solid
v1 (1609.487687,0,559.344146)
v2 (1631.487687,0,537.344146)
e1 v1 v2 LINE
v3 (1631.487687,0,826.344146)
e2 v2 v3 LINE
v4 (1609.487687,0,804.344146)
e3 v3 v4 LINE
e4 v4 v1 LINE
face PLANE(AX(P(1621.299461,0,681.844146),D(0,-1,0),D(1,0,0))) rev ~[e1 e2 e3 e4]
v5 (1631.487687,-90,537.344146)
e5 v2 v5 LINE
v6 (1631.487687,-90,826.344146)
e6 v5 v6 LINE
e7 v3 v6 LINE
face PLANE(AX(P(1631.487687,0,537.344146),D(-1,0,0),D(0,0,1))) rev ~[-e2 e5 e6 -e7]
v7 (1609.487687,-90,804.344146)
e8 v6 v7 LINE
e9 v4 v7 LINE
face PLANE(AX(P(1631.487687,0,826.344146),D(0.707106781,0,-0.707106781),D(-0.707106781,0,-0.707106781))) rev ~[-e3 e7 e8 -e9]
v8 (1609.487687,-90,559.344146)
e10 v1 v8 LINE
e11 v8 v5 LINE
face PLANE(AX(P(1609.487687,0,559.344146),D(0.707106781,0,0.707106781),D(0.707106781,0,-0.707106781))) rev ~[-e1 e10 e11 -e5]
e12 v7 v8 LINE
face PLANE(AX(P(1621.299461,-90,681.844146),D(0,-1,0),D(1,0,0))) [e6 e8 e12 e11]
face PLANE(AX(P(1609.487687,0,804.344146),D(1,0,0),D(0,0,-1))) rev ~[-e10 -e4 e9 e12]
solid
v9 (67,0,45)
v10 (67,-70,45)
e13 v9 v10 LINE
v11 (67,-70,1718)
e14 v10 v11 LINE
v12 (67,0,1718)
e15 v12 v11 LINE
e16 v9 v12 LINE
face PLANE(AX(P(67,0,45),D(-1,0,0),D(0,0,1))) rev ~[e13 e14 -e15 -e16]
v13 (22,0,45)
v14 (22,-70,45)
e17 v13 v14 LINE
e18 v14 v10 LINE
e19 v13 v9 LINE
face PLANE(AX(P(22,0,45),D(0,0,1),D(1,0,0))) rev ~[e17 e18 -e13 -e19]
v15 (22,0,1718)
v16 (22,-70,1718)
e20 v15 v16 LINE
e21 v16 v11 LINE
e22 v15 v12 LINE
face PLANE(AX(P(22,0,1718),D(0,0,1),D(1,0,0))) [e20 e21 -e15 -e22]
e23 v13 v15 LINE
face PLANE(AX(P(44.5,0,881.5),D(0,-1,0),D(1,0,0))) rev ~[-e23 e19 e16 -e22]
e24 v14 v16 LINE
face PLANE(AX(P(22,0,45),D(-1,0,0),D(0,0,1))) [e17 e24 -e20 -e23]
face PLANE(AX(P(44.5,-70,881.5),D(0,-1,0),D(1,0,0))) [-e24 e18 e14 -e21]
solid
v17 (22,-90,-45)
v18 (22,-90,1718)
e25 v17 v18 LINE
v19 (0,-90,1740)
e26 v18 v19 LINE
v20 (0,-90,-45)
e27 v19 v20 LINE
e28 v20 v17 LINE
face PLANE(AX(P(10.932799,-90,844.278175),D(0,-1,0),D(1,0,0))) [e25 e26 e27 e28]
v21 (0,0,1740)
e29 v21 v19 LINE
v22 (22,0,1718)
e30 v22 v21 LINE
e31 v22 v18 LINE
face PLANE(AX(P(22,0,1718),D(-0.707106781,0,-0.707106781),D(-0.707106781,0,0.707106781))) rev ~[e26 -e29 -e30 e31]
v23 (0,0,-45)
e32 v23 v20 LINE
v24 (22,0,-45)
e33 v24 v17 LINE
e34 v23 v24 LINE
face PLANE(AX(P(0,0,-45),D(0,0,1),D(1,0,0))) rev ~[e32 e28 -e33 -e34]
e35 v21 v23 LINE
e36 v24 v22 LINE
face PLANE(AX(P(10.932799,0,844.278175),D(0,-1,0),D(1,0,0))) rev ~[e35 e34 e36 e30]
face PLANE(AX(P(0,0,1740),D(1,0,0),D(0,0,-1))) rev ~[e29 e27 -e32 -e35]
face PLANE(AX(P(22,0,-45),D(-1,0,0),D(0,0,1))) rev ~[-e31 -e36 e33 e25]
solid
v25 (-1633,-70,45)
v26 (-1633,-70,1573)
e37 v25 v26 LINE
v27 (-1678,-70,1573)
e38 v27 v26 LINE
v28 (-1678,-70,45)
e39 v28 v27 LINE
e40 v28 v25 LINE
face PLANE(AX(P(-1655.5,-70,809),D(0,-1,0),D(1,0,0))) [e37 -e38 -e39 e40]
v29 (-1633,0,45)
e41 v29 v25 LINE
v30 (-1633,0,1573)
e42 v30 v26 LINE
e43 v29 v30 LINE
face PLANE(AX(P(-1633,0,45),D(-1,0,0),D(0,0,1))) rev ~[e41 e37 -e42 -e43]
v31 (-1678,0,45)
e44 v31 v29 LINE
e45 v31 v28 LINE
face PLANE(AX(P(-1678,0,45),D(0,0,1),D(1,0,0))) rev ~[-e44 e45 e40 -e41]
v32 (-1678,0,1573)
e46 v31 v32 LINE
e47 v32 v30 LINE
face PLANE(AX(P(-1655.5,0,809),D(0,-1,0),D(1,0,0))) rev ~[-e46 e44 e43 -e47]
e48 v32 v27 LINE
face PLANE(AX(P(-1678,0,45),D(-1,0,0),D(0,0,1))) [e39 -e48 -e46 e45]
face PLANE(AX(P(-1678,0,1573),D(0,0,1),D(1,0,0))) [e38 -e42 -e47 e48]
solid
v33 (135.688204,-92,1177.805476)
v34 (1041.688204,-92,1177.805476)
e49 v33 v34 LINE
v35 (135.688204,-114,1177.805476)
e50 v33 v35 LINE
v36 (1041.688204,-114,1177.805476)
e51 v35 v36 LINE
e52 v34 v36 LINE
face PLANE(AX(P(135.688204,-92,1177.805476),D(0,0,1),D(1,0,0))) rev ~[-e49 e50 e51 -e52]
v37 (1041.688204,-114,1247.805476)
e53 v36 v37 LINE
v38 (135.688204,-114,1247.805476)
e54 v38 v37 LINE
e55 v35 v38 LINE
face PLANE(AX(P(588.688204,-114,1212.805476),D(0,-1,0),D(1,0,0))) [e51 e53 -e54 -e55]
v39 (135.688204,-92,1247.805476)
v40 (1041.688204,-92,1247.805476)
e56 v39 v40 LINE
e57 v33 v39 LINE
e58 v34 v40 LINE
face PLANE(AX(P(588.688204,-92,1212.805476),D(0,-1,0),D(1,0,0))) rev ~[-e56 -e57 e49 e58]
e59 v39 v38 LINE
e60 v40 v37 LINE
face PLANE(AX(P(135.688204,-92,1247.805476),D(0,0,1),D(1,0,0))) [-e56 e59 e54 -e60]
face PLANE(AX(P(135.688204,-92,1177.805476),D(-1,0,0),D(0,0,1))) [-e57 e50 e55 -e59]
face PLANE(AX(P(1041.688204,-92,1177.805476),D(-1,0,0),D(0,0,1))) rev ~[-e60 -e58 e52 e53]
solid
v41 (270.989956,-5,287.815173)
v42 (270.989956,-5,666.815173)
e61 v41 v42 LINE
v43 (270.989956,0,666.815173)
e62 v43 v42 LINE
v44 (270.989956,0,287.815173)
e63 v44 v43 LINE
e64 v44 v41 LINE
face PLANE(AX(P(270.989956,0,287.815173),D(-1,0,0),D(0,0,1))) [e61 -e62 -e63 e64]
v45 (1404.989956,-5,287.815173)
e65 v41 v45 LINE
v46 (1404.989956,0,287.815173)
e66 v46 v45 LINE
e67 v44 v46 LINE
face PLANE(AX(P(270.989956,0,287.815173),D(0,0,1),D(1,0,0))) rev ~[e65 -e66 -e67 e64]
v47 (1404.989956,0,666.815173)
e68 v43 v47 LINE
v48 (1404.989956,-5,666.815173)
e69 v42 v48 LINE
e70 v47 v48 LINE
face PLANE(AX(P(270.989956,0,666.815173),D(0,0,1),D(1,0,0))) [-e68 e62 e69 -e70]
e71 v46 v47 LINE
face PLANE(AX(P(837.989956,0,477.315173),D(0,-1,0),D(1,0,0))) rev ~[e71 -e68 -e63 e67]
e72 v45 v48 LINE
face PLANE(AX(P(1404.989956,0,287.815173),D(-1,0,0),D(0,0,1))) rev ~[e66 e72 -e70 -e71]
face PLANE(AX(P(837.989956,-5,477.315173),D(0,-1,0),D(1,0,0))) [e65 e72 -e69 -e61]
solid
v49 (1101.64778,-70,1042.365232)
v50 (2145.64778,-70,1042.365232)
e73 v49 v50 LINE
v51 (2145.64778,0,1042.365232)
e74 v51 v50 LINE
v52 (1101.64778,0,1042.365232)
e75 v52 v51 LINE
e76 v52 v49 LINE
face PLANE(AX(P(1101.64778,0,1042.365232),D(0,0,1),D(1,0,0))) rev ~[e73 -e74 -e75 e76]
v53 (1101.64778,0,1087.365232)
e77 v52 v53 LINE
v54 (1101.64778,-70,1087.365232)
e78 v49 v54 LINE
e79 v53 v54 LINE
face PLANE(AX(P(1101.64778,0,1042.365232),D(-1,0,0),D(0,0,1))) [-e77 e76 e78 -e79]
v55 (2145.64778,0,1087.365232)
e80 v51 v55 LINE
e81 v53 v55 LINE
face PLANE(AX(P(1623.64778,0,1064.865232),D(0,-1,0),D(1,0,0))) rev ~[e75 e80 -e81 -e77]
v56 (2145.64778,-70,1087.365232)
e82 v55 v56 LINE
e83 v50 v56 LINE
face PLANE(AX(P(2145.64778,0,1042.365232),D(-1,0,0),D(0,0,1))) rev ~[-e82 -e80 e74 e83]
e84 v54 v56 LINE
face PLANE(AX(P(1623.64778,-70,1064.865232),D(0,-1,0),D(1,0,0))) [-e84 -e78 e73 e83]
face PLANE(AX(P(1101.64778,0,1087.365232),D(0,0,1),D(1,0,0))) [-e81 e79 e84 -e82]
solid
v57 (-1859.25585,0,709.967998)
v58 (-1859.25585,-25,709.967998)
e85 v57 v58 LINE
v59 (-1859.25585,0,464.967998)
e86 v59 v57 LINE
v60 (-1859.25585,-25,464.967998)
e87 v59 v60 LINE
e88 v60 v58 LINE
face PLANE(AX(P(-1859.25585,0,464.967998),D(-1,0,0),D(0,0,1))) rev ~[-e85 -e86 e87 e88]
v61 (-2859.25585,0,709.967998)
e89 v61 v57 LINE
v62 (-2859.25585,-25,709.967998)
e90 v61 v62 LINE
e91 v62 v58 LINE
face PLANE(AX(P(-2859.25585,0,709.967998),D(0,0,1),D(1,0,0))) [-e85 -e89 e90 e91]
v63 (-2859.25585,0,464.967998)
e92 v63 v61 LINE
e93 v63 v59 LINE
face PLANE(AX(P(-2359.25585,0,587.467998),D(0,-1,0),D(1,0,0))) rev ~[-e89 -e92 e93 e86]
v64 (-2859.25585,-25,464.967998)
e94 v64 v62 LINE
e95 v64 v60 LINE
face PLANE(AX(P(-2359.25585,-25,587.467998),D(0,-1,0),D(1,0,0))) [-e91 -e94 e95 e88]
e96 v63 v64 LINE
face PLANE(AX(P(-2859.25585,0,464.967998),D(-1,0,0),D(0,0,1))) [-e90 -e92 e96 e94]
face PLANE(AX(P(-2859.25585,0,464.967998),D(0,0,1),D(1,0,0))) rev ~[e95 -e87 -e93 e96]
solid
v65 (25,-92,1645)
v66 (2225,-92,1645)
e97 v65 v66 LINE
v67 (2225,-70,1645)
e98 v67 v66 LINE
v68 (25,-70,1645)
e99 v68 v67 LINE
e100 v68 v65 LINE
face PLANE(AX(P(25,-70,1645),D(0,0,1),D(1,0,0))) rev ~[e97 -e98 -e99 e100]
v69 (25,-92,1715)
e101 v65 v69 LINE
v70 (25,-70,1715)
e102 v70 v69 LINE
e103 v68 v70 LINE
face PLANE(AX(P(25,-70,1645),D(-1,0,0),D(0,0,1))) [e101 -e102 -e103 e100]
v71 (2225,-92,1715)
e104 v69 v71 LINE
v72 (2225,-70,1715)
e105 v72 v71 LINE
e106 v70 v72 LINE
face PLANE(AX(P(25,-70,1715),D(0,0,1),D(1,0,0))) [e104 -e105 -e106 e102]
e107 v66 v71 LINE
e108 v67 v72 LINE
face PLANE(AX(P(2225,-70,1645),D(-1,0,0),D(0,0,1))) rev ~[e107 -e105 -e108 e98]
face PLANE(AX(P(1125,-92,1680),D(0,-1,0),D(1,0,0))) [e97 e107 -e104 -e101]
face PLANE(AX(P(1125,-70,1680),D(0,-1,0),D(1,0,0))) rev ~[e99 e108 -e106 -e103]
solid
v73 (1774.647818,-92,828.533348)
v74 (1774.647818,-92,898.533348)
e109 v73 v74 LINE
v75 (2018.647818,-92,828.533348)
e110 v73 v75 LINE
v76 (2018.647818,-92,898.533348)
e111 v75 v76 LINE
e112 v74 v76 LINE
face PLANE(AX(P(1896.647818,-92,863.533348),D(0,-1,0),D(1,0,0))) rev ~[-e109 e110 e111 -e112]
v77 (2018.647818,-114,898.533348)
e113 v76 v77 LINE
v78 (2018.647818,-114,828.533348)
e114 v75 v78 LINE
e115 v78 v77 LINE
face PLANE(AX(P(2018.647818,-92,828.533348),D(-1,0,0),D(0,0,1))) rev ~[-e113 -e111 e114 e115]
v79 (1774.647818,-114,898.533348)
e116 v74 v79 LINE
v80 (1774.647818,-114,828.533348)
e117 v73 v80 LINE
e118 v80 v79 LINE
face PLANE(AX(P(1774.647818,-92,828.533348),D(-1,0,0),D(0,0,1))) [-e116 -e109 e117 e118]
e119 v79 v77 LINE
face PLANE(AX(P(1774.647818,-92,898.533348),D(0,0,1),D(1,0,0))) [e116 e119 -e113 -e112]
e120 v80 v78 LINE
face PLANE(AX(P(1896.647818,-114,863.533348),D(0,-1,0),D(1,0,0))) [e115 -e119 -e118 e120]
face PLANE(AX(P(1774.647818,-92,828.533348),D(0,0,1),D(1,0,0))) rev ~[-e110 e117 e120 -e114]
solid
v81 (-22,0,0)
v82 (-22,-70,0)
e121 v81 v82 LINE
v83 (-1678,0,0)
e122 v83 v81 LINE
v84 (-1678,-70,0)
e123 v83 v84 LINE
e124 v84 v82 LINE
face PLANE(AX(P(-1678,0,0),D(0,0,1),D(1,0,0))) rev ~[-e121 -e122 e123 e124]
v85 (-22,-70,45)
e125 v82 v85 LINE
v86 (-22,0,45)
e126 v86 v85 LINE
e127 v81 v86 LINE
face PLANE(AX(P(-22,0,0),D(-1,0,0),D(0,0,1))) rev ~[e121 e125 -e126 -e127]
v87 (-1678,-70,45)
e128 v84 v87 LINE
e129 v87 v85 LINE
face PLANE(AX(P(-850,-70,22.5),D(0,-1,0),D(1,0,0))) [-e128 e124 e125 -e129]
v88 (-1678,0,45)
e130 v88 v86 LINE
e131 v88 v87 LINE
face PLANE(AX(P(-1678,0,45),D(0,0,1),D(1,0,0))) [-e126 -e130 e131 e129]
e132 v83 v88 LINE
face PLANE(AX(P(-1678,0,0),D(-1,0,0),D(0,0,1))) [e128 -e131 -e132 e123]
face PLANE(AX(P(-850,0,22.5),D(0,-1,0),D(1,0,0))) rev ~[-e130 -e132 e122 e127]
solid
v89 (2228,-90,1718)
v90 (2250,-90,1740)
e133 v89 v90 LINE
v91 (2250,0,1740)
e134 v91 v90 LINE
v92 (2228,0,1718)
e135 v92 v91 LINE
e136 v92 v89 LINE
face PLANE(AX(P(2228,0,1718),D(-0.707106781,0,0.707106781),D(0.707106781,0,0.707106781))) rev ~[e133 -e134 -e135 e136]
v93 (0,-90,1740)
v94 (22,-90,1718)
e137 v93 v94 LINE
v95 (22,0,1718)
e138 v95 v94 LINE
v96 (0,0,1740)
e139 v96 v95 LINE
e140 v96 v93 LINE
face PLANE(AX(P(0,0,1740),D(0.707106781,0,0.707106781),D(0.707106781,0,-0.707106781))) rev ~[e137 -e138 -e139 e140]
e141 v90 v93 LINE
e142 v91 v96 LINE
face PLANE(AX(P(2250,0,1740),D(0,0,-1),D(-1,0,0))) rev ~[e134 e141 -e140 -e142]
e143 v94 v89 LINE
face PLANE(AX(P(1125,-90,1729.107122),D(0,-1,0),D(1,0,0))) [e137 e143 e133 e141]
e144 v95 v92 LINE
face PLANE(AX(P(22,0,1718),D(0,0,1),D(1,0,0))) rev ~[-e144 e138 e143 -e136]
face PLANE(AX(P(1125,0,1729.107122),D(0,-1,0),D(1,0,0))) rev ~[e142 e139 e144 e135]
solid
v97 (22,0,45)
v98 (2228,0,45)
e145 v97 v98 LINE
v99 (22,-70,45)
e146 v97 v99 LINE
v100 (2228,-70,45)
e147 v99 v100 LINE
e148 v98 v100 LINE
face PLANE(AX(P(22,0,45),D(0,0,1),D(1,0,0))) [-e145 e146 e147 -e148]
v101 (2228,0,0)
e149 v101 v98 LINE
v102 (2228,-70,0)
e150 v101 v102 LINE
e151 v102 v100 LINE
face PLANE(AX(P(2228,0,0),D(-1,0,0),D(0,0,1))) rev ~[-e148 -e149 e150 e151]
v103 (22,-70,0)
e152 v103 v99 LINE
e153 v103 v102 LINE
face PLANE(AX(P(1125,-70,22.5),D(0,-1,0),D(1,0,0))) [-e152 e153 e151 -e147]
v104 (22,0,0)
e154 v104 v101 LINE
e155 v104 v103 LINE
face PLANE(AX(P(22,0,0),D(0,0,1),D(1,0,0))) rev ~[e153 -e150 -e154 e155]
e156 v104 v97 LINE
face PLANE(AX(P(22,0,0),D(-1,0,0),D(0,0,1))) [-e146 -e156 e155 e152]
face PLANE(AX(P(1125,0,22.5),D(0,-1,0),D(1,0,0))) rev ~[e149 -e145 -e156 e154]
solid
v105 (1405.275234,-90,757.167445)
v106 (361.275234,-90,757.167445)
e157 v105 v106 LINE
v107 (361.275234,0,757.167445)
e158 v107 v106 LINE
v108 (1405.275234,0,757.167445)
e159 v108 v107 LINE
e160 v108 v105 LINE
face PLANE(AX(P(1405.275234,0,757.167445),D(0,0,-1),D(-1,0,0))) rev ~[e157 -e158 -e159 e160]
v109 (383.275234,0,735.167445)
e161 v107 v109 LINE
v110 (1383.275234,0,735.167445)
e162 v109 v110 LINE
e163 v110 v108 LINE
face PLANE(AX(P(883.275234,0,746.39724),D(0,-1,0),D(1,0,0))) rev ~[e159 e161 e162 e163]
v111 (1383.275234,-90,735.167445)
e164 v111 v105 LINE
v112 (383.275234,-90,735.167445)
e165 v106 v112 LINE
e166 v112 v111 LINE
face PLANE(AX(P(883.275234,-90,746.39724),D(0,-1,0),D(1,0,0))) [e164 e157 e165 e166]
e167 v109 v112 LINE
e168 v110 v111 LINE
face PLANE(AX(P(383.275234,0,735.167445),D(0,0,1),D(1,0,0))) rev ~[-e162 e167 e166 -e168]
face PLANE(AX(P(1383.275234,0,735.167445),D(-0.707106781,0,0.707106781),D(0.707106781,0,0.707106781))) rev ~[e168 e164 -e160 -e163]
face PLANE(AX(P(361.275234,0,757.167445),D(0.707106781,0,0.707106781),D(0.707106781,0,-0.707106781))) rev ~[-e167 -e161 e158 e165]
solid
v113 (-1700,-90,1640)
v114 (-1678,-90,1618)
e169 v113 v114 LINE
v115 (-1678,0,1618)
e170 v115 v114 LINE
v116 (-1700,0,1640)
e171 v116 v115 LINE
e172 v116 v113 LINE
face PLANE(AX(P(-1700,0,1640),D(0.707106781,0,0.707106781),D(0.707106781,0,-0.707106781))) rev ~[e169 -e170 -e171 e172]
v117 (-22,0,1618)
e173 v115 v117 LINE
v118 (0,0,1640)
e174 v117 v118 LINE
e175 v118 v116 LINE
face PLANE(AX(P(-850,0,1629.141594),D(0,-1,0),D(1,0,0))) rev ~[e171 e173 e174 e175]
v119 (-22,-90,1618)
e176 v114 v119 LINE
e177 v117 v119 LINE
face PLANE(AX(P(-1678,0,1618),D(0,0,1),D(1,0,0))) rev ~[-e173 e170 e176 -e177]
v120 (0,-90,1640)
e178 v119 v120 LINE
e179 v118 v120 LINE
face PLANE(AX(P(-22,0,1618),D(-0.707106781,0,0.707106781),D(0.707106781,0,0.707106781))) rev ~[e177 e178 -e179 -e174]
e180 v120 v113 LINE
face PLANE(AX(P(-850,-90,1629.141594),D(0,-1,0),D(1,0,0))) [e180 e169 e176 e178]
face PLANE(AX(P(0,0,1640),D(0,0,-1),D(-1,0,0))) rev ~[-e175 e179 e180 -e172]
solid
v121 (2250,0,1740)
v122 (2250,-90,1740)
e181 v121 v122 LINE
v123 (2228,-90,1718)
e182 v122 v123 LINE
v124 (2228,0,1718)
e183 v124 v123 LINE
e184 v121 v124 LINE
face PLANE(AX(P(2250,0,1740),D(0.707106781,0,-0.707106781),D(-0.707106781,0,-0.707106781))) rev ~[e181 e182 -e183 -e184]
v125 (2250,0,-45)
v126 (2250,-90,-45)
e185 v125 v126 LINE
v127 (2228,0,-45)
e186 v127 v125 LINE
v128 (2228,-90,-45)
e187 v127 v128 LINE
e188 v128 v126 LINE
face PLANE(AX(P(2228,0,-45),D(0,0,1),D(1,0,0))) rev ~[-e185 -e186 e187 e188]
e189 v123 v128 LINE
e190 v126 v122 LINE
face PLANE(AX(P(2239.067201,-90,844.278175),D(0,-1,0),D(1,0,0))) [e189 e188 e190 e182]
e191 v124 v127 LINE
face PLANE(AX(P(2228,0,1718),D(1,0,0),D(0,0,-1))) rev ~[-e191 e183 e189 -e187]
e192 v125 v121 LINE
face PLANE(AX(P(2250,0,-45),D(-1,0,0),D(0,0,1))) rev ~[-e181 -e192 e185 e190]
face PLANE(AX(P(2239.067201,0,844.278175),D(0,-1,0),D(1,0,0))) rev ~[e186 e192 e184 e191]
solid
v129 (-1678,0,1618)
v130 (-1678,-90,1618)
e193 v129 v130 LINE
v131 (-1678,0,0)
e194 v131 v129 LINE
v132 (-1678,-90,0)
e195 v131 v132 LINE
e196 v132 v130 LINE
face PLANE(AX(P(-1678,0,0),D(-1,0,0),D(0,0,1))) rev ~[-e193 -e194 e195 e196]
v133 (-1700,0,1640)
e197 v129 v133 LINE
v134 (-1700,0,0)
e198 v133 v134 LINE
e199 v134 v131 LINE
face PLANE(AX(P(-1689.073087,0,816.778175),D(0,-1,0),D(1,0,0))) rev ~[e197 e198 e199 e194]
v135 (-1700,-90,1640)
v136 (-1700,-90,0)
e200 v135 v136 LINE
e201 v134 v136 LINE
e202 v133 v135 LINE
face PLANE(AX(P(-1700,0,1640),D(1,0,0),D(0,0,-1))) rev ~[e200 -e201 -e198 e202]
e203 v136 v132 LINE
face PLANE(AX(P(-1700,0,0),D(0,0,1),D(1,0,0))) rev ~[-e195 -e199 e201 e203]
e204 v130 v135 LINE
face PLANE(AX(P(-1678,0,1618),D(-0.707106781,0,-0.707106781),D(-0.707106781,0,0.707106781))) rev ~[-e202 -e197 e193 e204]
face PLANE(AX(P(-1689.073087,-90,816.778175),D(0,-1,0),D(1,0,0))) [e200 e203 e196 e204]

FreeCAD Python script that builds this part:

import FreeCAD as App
import Part
import Sketcher

V = App.Vector

doc = App.newDocument("Part")
params = doc.addObject("Spreadsheet::Sheet", "Params")
for row, (alias, value) in enumerate([
    ("sketch1_width", "2206 mm"),
    ("sketch1_height", "45 mm"),
    ("pad1_length", "70 mm"),
    ("sketch2_width", "45 mm"),
    ("sketch2_height", "1673 mm"),
    ("pad2_length", "70 mm"),
    ("sketch3_width", "2250 mm"),
    ("sketch3_width2", "2206 mm"),
    ("pad3_length", "90 mm"),
    ("sketch4_width", "22 mm"),
    ("sketch4_height", "1785 mm"),
    ("sketch4_height2", "1763 mm"),
    ("pad4_length", "90 mm"),
    ("sketch5_width", "22 mm"),
    ("sketch5_height", "1785 mm"),
    ("sketch5_height2", "1763 mm"),
    ("pad5_length", "90 mm"),
    ("sketch6_width", "2200 mm"),
    ("sketch6_height", "70 mm"),
    ("pad6_length", "22 mm"),
    ("sketch7_width", "1044 mm"),
    ("sketch7_height", "45 mm"),
    ("pad7_length", "70 mm"),
    ("sketch8_width", "906 mm"),
    ("sketch8_height", "70 mm"),
    ("pad8_length", "22 mm"),
    ("sketch9_width", "244 mm"),
    ("sketch9_height", "70 mm"),
    ("pad9_length", "22 mm"),
    ("sketch10_height", "289 mm"),
    ("sketch10_height2", "245 mm"),
    ("pad10_length", "90 mm"),
    ("sketch11_width", "1044 mm"),
    ("sketch11_width2", "1000 mm"),
    ("pad11_length", "90 mm"),
    ("sketch12_width", "1134 mm"),
    ("sketch12_height", "379 mm"),
    ("pad12_length", "5 mm"),
    ("sketch13_width", "1000 mm"),
    ("sketch13_height", "245 mm"),
    ("pad13_length", "25 mm"),
    ("sketch14_width", "1656 mm"),
    ("sketch14_height", "45 mm"),
    ("pad14_length", "70 mm"),
    ("sketch15_width", "45 mm"),
    ("sketch15_height", "1528 mm"),
    ("pad15_length", "70 mm"),
    ("sketch16_width", "22 mm"),
    ("sketch16_height", "1640 mm"),
    ("sketch16_height2", "1618 mm"),
    ("pad16_length", "90 mm"),
    ("sketch17_width", "1700 mm"),
    ("sketch17_width2", "1656 mm"),
    ("pad17_length", "90 mm"),
], start=1):
    params.set(f"A{row}", alias)
    params.set(f"B{row}", "=" + value)
    params.setAlias(f"B{row}", alias)

body = doc.addObject("PartDesign::Body", "Body")

# Sketch on XZ plane
sketch1 = doc.addObject("Sketcher::SketchObject", "Sketch")
body.addObject(sketch1)
sketch1.AttachmentSupport = (doc.XZ_Plane, [""])
sketch1.MapMode = "FlatFace"
sketch1.addGeometry([
    Part.LineSegment(V(22, 45, 0), V(22, 0, 0)),
    Part.LineSegment(V(22, 0, 0), V(2228, 0, 0)),
    Part.LineSegment(V(2228, 0, 0), V(2228, 45, 0)),
    Part.LineSegment(V(2228, 45, 0), V(22, 45, 0)),
], False)
sketch1.addConstraint([
    Sketcher.Constraint("Coincident", 0, 2, 1, 1),
    Sketcher.Constraint("Coincident", 1, 2, 2, 1),
    Sketcher.Constraint("Coincident", 2, 2, 3, 1),
    Sketcher.Constraint("Coincident", 3, 2, 0, 1),
    Sketcher.Constraint("Vertical", 0),
    Sketcher.Constraint("Horizontal", 1),
    Sketcher.Constraint("Vertical", 2),
    Sketcher.Constraint("Horizontal", 3),
    Sketcher.Constraint("PointOnObject", 0, 2, -1),
    Sketcher.Constraint("DistanceX", 1, 1, 1, 2, 2206.0),
    Sketcher.Constraint("DistanceY", 0, 2, 0, 1, 45.0),
    Sketcher.Constraint("DistanceX", -1, 1, 0, 2, 22.0),
])
sketch1.setExpression("Constraints[9]", "Params.sketch1_width")
sketch1.setExpression("Constraints[10]", "Params.sketch1_height")
pad1 = doc.addObject("PartDesign::Pad", "Pad")
body.addObject(pad1)
pad1.Profile = sketch1
pad1.setExpression("Length", "Params.pad1_length")
body2 = doc.addObject("PartDesign::Body", "Body001")

# Sketch on XZ plane
sketch2 = doc.addObject("Sketcher::SketchObject", "Sketch001")
body2.addObject(sketch2)
sketch2.AttachmentSupport = (doc.getObject("XZ_Plane001"), [""])
sketch2.MapMode = "FlatFace"
sketch2.addGeometry([
    Part.LineSegment(V(22, 1718, 0), V(22, 45, 0)),
    Part.LineSegment(V(22, 45, 0), V(67, 45, 0)),
    Part.LineSegment(V(67, 45, 0), V(67, 1718, 0)),
    Part.LineSegment(V(67, 1718, 0), V(22, 1718, 0)),
], False)
sketch2.addConstraint([
    Sketcher.Constraint("Coincident", 0, 2, 1, 1),
    Sketcher.Constraint("Coincident", 1, 2, 2, 1),
    Sketcher.Constraint("Coincident", 2, 2, 3, 1),
    Sketcher.Constraint("Coincident", 3, 2, 0, 1),
    Sketcher.Constraint("Vertical", 0),
    Sketcher.Constraint("Horizontal", 1),
    Sketcher.Constraint("Vertical", 2),
    Sketcher.Constraint("Horizontal", 3),
    Sketcher.Constraint("DistanceX", 1, 1, 1, 2, 45.0),
    Sketcher.Constraint("DistanceY", 0, 2, 0, 1, 1673.0),
    Sketcher.Constraint("DistanceX", -1, 1, 0, 2, 22.0),
    Sketcher.Constraint("DistanceY", -1, 1, 0, 2, 45.0),
])
sketch2.setExpression("Constraints[8]", "Params.sketch2_width")
sketch2.setExpression("Constraints[9]", "Params.sketch2_height")
pad2 = doc.addObject("PartDesign::Pad", "Pad001")
body2.addObject(pad2)
pad2.Profile = sketch2
pad2.setExpression("Length", "Params.pad2_length")
body3 = doc.addObject("PartDesign::Body", "Body002")

# Sketch on XZ plane
sketch3 = doc.addObject("Sketcher::SketchObject", "Sketch002")
body3.addObject(sketch3)
sketch3.AttachmentSupport = (doc.getObject("XZ_Plane002"), [""])
sketch3.MapMode = "FlatFace"
sketch3.addGeometry([
    Part.LineSegment(V(2250, 1740, 0), V(0, 1740, 0)),
    Part.LineSegment(V(0, 1740, 0), V(22, 1718, 0)),
    Part.LineSegment(V(22, 1718, 0), V(2228, 1718, 0)),
    Part.LineSegment(V(2228, 1718, 0), V(2250, 1740, 0)),
], False)
sketch3.addConstraint([
    Sketcher.Constraint("Coincident", 0, 2, 1, 1),
    Sketcher.Constraint("Coincident", 1, 2, 2, 1),
    Sketcher.Constraint("Coincident", 2, 2, 3, 1),
    Sketcher.Constraint("Coincident", 3, 2, 0, 1),
    Sketcher.Constraint("Horizontal", 0),
    Sketcher.Constraint("Horizontal", 2),
    Sketcher.Constraint("PointOnObject", 0, 2, -2),
    Sketcher.Constraint("Perpendicular", 1, 3),
    Sketcher.Constraint("Equal", 1, 3),
    Sketcher.Constraint("DistanceX", 0, 2, 0, 1, 2250.0),
    Sketcher.Constraint("DistanceX", 2, 1, 2, 2, 2206.0),
    Sketcher.Constraint("DistanceY", -1, 1, 0, 2, 1740.0),
])
sketch3.setExpression("Constraints[9]", "Params.sketch3_width")
sketch3.setExpression("Constraints[10]", "Params.sketch3_width2")
pad3 = doc.addObject("PartDesign::Pad", "Pad002")
body3.addObject(pad3)
pad3.Profile = sketch3
pad3.setExpression("Length", "Params.pad3_length")
body4 = doc.addObject("PartDesign::Body", "Body003")

# Sketch on XZ plane
sketch4 = doc.addObject("Sketcher::SketchObject", "Sketch003")
body4.addObject(sketch4)
sketch4.AttachmentSupport = (doc.getObject("XZ_Plane003"), [""])
sketch4.MapMode = "FlatFace"
sketch4.addGeometry([
    Part.LineSegment(V(2250, -45, 0), V(2250, 1740, 0)),
    Part.LineSegment(V(2250, 1740, 0), V(2228, 1718, 0)),
    Part.LineSegment(V(2228, 1718, 0), V(2228, -45, 0)),
    Part.LineSegment(V(2228, -45, 0), V(2250, -45, 0)),
], False)
sketch4.addConstraint([
    Sketcher.Constraint("Coincident", 0, 2, 1, 1),
    Sketcher.Constraint("Coincident", 1, 2, 2, 1),
    Sketcher.Constraint("Coincident", 2, 2, 3, 1),
    Sketcher.Constraint("Coincident", 3, 2, 0, 1),
    Sketcher.Constraint("Vertical", 0),
    Sketcher.Constraint("Vertical", 2),
    Sketcher.Constraint("Horizontal", 3),
    Sketcher.Constraint("DistanceX", 3, 1, 3, 2, 22.0),
    Sketcher.Constraint("DistanceY", 0, 1, 0, 2, 1785.0),
    Sketcher.Constraint("DistanceY", 2, 2, 2, 1, 1763.0),
    Sketcher.Constraint("DistanceX", -1, 1, 0, 2, 2250.0),
    Sketcher.Constraint("DistanceY", -1, 1, 0, 2, 1740.0),
])
sketch4.setExpression("Constraints[7]", "Params.sketch4_width")
sketch4.setExpression("Constraints[8]", "Params.sketch4_height")
sketch4.setExpression("Constraints[9]", "Params.sketch4_height2")
pad4 = doc.addObject("PartDesign::Pad", "Pad003")
body4.addObject(pad4)
pad4.Profile = sketch4
pad4.setExpression("Length", "Params.pad4_length")
body5 = doc.addObject("PartDesign::Body", "Body004")

# Sketch on XZ plane
sketch5 = doc.addObject("Sketcher::SketchObject", "Sketch004")
body5.addObject(sketch5)
sketch5.AttachmentSupport = (doc.getObject("XZ_Plane004"), [""])
sketch5.MapMode = "FlatFace"
sketch5.addGeometry([
    Part.LineSegment(V(22, 1718, 0), V(0, 1740, 0)),
    Part.LineSegment(V(0, 1740, 0), V(0, -45, 0)),
    Part.LineSegment(V(0, -45, 0), V(22, -45, 0)),
    Part.LineSegment(V(22, -45, 0), V(22, 1718, 0)),
], False)
sketch5.addConstraint([
    Sketcher.Constraint("Coincident", 0, 2, 1, 1),
    Sketcher.Constraint("Coincident", 1, 2, 2, 1),
    Sketcher.Constraint("Coincident", 2, 2, 3, 1),
    Sketcher.Constraint("Coincident", 3, 2, 0, 1),
    Sketcher.Constraint("Vertical", 1),
    Sketcher.Constraint("Horizontal", 2),
    Sketcher.Constraint("Vertical", 3),
    Sketcher.Constraint("PointOnObject", 0, 2, -2),
    Sketcher.Constraint("DistanceX", 2, 1, 2, 2, 22.0),
    Sketcher.Constraint("DistanceY", 1, 2, 1, 1, 1785.0),
    Sketcher.Constraint("DistanceY", 3, 1, 3, 2, 1763.0),
    Sketcher.Constraint("DistanceY", -1, 1, 0, 2, 1740.0),
])
sketch5.setExpression("Constraints[8]", "Params.sketch5_width")
sketch5.setExpression("Constraints[9]", "Params.sketch5_height")
sketch5.setExpression("Constraints[10]", "Params.sketch5_height2")
pad5 = doc.addObject("PartDesign::Pad", "Pad004")
body5.addObject(pad5)
pad5.Profile = sketch5
pad5.setExpression("Length", "Params.pad5_length")
body6 = doc.addObject("PartDesign::Body", "Body005")

# Sketch on XZ plane
sketch6 = doc.addObject("Sketcher::SketchObject", "Sketch005")
body6.addObject(sketch6)
sketch6.AttachmentSupport = (doc.getObject("XZ_Plane005"), [""])
sketch6.MapMode = "FlatFace"
sketch6.AttachmentOffset = App.Placement(V(0, 0, 70), App.Rotation())
sketch6.addGeometry([
    Part.LineSegment(V(25, 1715, 0), V(25, 1645, 0)),
    Part.LineSegment(V(25, 1645, 0), V(2225, 1645, 0)),
    Part.LineSegment(V(2225, 1645, 0), V(2225, 1715, 0)),
    Part.LineSegment(V(2225, 1715, 0), V(25, 1715, 0)),
], False)
sketch6.addConstraint([
    Sketcher.Constraint("Coincident", 0, 2, 1, 1),
    Sketcher.Constraint("Coincident", 1, 2, 2, 1),
    Sketcher.Constraint("Coincident", 2, 2, 3, 1),
    Sketcher.Constraint("Coincident", 3, 2, 0, 1),
    Sketcher.Constraint("Vertical", 0),
    Sketcher.Constraint("Horizontal", 1),
    Sketcher.Constraint("Vertical", 2),
    Sketcher.Constraint("Horizontal", 3),
    Sketcher.Constraint("DistanceX", 1, 1, 1, 2, 2200.0),
    Sketcher.Constraint("DistanceY", 0, 2, 0, 1, 70.0),
    Sketcher.Constraint("DistanceX", -1, 1, 0, 2, 25.0),
    Sketcher.Constraint("DistanceY", -1, 1, 0, 2, 1645.0),
])
sketch6.setExpression("Constraints[8]", "Params.sketch6_width")
sketch6.setExpression("Constraints[9]", "Params.sketch6_height")
pad6 = doc.addObject("PartDesign::Pad", "Pad005")
body6.addObject(pad6)
pad6.Profile = sketch6
pad6.setExpression("Length", "Params.pad6_length")
body7 = doc.addObject("PartDesign::Body", "Body006")

# Sketch on XZ plane
sketch7 = doc.addObject("Sketcher::SketchObject", "Sketch006")
body7.addObject(sketch7)
sketch7.AttachmentSupport = (doc.getObject("XZ_Plane006"), [""])
sketch7.MapMode = "FlatFace"
sketch7.addGeometry([
    Part.LineSegment(V(1102, 1087, 0), V(1102, 1042, 0)),
    Part.LineSegment(V(1102, 1042, 0), V(2146, 1042, 0)),
    Part.LineSegment(V(2146, 1042, 0), V(2146, 1087, 0)),
    Part.LineSegment(V(2146, 1087, 0), V(1102, 1087, 0)),
], False)
sketch7.addConstraint([
    Sketcher.Constraint("Coincident", 0, 2, 1, 1),
    Sketcher.Constraint("Coincident", 1, 2, 2, 1),
    Sketcher.Constraint("Coincident", 2, 2, 3, 1),
    Sketcher.Constraint("Coincident", 3, 2, 0, 1),
    Sketcher.Constraint("Vertical", 0),
    Sketcher.Constraint("Horizontal", 1),
    Sketcher.Constraint("Vertical", 2),
    Sketcher.Constraint("Horizontal", 3),
    Sketcher.Constraint("DistanceX", 1, 1, 1, 2, 1044.0),
    Sketcher.Constraint("DistanceY", 0, 2, 0, 1, 45.0),
    Sketcher.Constraint("DistanceX", -1, 1, 0, 2, 1101.64778),
    Sketcher.Constraint("DistanceY", -1, 1, 0, 2, 1042.365232),
])
sketch7.setExpression("Constraints[8]", "Params.sketch7_width")
sketch7.setExpression("Constraints[9]", "Params.sketch7_height")
pad7 = doc.addObject("PartDesign::Pad", "Pad006")
body7.addObject(pad7)
pad7.Profile = sketch7
pad7.setExpression("Length", "Params.pad7_length")
body8 = doc.addObject("PartDesign::Body", "Body007")

# Sketch on XZ plane
sketch8 = doc.addObject("Sketcher::SketchObject", "Sketch007")
body8.addObject(sketch8)
sketch8.AttachmentSupport = (doc.getObject("XZ_Plane007"), [""])
sketch8.MapMode = "FlatFace"
sketch8.AttachmentOffset = App.Placement(V(0, 0, 92), App.Rotation())
sketch8.addGeometry([
    Part.LineSegment(V(136, 1248, 0), V(136, 1178, 0)),
    Part.LineSegment(V(136, 1178, 0), V(1042, 1178, 0)),
    Part.LineSegment(V(1042, 1178, 0), V(1042, 1248, 0)),
    Part.LineSegment(V(1042, 1248, 0), V(136, 1248, 0)),
], False)
sketch8.addConstraint([
    Sketcher.Constraint("Coincident", 0, 2, 1, 1),
    Sketcher.Constraint("Coincident", 1, 2, 2, 1),
    Sketcher.Constraint("Coincident", 2, 2, 3, 1),
    Sketcher.Constraint("Coincident", 3, 2, 0, 1),
    Sketcher.Constraint("Vertical", 0),
    Sketcher.Constraint("Horizontal", 1),
    Sketcher.Constraint("Vertical", 2),
    Sketcher.Constraint("Horizontal", 3),
    Sketcher.Constraint("DistanceX", 1, 1, 1, 2, 906.0),
    Sketcher.Constraint("DistanceY", 0, 2, 0, 1, 70.0),
    Sketcher.Constraint("DistanceX", -1, 1, 0, 2, 135.688204),
    Sketcher.Constraint("DistanceY", -1, 1, 0, 2, 1177.805476),
])
sketch8.setExpression("Constraints[8]", "Params.sketch8_width")
sketch8.setExpression("Constraints[9]", "Params.sketch8_height")
pad8 = doc.addObject("PartDesign::Pad", "Pad007")
body8.addObject(pad8)
pad8.Profile = sketch8
pad8.setExpression("Length", "Params.pad8_length")
body9 = doc.addObject("PartDesign::Body", "Body008")

# Sketch on XZ plane
sketch9 = doc.addObject("Sketcher::SketchObject", "Sketch008")
body9.addObject(sketch9)
sketch9.AttachmentSupport = (doc.getObject("XZ_Plane008"), [""])
sketch9.MapMode = "FlatFace"
sketch9.AttachmentOffset = App.Placement(V(0, 0, 92), App.Rotation())
sketch9.addGeometry([
    Part.LineSegment(V(1775, 899, 0), V(1775, 829, 0)),
    Part.LineSegment(V(1775, 829, 0), V(2019, 829, 0)),
    Part.LineSegment(V(2019, 829, 0), V(2019, 899, 0)),
    Part.LineSegment(V(2019, 899, 0), V(1775, 899, 0)),
], False)
sketch9.addConstraint([
    Sketcher.Constraint("Coincident", 0, 2, 1, 1),
    Sketcher.Constraint("Coincident", 1, 2, 2, 1),
    Sketcher.Constraint("Coincident", 2, 2, 3, 1),
    Sketcher.Constraint("Coincident", 3, 2, 0, 1),
    Sketcher.Constraint("Vertical", 0),
    Sketcher.Constraint("Horizontal", 1),
    Sketcher.Constraint("Vertical", 2),
    Sketcher.Constraint("Horizontal", 3),
    Sketcher.Constraint("DistanceX", 1, 1, 1, 2, 244.0),
    Sketcher.Constraint("DistanceY", 0, 2, 0, 1, 70.0),
    Sketcher.Constraint("DistanceX", -1, 1, 0, 2, 1774.647818),
    Sketcher.Constraint("DistanceY", -1, 1, 0, 2, 828.533348),
])
sketch9.setExpression("Constraints[8]", "Params.sketch9_width")
sketch9.setExpression("Constraints[9]", "Params.sketch9_height")
pad9 = doc.addObject("PartDesign::Pad", "Pad008")
body9.addObject(pad9)
pad9.Profile = sketch9
pad9.setExpression("Length", "Params.pad9_length")
body10 = doc.addObject("PartDesign::Body", "Body009")

# Sketch on XZ plane
sketch10 = doc.addObject("Sketcher::SketchObject", "Sketch009")
body10.addObject(sketch10)
sketch10.AttachmentSupport = (doc.getObject("XZ_Plane009"), [""])
sketch10.MapMode = "FlatFace"
sketch10.addGeometry([
    Part.LineSegment(V(1631, 537, 0), V(1631, 826, 0)),
    Part.LineSegment(V(1631, 826, 0), V(1609, 804, 0)),
    Part.LineSegment(V(1609, 804, 0), V(1609, 559, 0)),
    Part.LineSegment(V(1609, 559, 0), V(1631, 537, 0)),
], False)
sketch10.addConstraint([
    Sketcher.Constraint("Coincident", 0, 2, 1, 1),
    Sketcher.Constraint("Coincident", 1, 2, 2, 1),
    Sketcher.Constraint("Coincident", 2, 2, 3, 1),
    Sketcher.Constraint("Coincident", 3, 2, 0, 1),
    Sketcher.Constraint("Vertical", 0),
    Sketcher.Constraint("Vertical", 2),
    Sketcher.Constraint("Perpendicular", 1, 3),
    Sketcher.Constraint("Equal", 1, 3),
    Sketcher.Constraint("DistanceY", 0, 1, 0, 2, 289.0),
    Sketcher.Constraint("DistanceY", 2, 2, 2, 1, 245.0),
    Sketcher.Constraint("DistanceX", -1, 1, 0, 2, 1631.487687),
    Sketcher.Constraint("DistanceY", -1, 1, 0, 2, 826.344146),
])
sketch10.setExpression("Constraints[8]", "Params.sketch10_height")
sketch10.setExpression("Constraints[9]", "Params.sketch10_height2")
pad10 = doc.addObject("PartDesign::Pad", "Pad009")
body10.addObject(pad10)
pad10.Profile = sketch10
pad10.setExpression("Length", "Params.pad10_length")
body11 = doc.addObject("PartDesign::Body", "Body010")

# Sketch on XZ plane
sketch11 = doc.addObject("Sketcher::SketchObject", "Sketch010")
body11.addObject(sketch11)
sketch11.AttachmentSupport = (doc.getObject("XZ_Plane010"), [""])
sketch11.MapMode = "FlatFace"
sketch11.addGeometry([
    Part.LineSegment(V(1405, 757, 0), V(361, 757, 0)),
    Part.LineSegment(V(361, 757, 0), V(383, 735, 0)),
    Part.LineSegment(V(383, 735, 0), V(1383, 735, 0)),
    Part.LineSegment(V(1383, 735, 0), V(1405, 757, 0)),
], False)
sketch11.addConstraint([
    Sketcher.Constraint("Coincident", 0, 2, 1, 1),
    Sketcher.Constraint("Coincident", 1, 2, 2, 1),
    Sketcher.Constraint("Coincident", 2, 2, 3, 1),
    Sketcher.Constraint("Coincident", 3, 2, 0, 1),
    Sketcher.Constraint("Horizontal", 0),
    Sketcher.Constraint("Horizontal", 2),
    Sketcher.Constraint("Perpendicular", 1, 3),
    Sketcher.Constraint("Equal", 1, 3),
    Sketcher.Constraint("DistanceX", 0, 2, 0, 1, 1044.0),
    Sketcher.Constraint("DistanceX", 2, 1, 2, 2, 1000.0),
    Sketcher.Constraint("DistanceX", -1, 1, 0, 2, 361.275234),
    Sketcher.Constraint("DistanceY", -1, 1, 0, 2, 757.167445),
])
sketch11.setExpression("Constraints[8]", "Params.sketch11_width")
sketch11.setExpression("Constraints[9]", "Params.sketch11_width2")
pad11 = doc.addObject("PartDesign::Pad", "Pad010")
body11.addObject(pad11)
pad11.Profile = sketch11
pad11.setExpression("Length", "Params.pad11_length")
body12 = doc.addObject("PartDesign::Body", "Body011")

# Sketch on XZ plane
sketch12 = doc.addObject("Sketcher::SketchObject", "Sketch011")
body12.addObject(sketch12)
sketch12.AttachmentSupport = (doc.getObject("XZ_Plane011"), [""])
sketch12.MapMode = "FlatFace"
sketch12.addGeometry([
    Part.LineSegment(V(271, 667, 0), V(271, 288, 0)),
    Part.LineSegment(V(271, 288, 0), V(1405, 288, 0)),
    Part.LineSegment(V(1405, 288, 0), V(1405, 667, 0)),
    Part.LineSegment(V(1405, 667, 0), V(271, 667, 0)),
], False)
sketch12.addConstraint([
    Sketcher.Constraint("Coincident", 0, 2, 1, 1),
    Sketcher.Constraint("Coincident", 1, 2, 2, 1),
    Sketcher.Constraint("Coincident", 2, 2, 3, 1),
    Sketcher.Constraint("Coincident", 3, 2, 0, 1),
    Sketcher.Constraint("Vertical", 0),
    Sketcher.Constraint("Horizontal", 1),
    Sketcher.Constraint("Vertical", 2),
    Sketcher.Constraint("Horizontal", 3),
    Sketcher.Constraint("DistanceX", 1, 1, 1, 2, 1134.0),
    Sketcher.Constraint("DistanceY", 0, 2, 0, 1, 379.0),
    Sketcher.Constraint("DistanceX", -1, 1, 0, 2, 270.989956),
    Sketcher.Constraint("DistanceY", -1, 1, 0, 2, 287.815173),
])
sketch12.setExpression("Constraints[8]", "Params.sketch12_width")
sketch12.setExpression("Constraints[9]", "Params.sketch12_height")
pad12 = doc.addObject("PartDesign::Pad", "Pad011")
body12.addObject(pad12)
pad12.Profile = sketch12
pad12.setExpression("Length", "Params.pad12_length")
body13 = doc.addObject("PartDesign::Body", "Body012")

# Sketch on XZ plane
sketch13 = doc.addObject("Sketcher::SketchObject", "Sketch012")
body13.addObject(sketch13)
sketch13.AttachmentSupport = (doc.getObject("XZ_Plane012"), [""])
sketch13.MapMode = "FlatFace"
sketch13.addGeometry([
    Part.LineSegment(V(-2859, 710, 0), V(-2859, 465, 0)),
    Part.LineSegment(V(-2859, 465, 0), V(-1859, 465, 0)),
    Part.LineSegment(V(-1859, 465, 0), V(-1859, 710, 0)),
    Part.LineSegment(V(-1859, 710, 0), V(-2859, 710, 0)),
], False)
sketch13.addConstraint([
    Sketcher.Constraint("Coincident", 0, 2, 1, 1),
    Sketcher.Constraint("Coincident", 1, 2, 2, 1),
    Sketcher.Constraint("Coincident", 2, 2, 3, 1),
    Sketcher.Constraint("Coincident", 3, 2, 0, 1),
    Sketcher.Constraint("Vertical", 0),
    Sketcher.Constraint("Horizontal", 1),
    Sketcher.Constraint("Vertical", 2),
    Sketcher.Constraint("Horizontal", 3),
    Sketcher.Constraint("DistanceX", 1, 1, 1, 2, 1000.0),
    Sketcher.Constraint("DistanceY", 0, 2, 0, 1, 245.0),
    Sketcher.Constraint("DistanceY", -1, 1, 0, 2, 464.967998),
    Sketcher.Constraint("DistanceX", 0, 2, -1, 1, 2859.25585),
])
sketch13.setExpression("Constraints[8]", "Params.sketch13_width")
sketch13.setExpression("Constraints[9]", "Params.sketch13_height")
pad13 = doc.addObject("PartDesign::Pad", "Pad012")
body13.addObject(pad13)
pad13.Profile = sketch13
pad13.setExpression("Length", "Params.pad13_length")
body14 = doc.addObject("PartDesign::Body", "Body013")

# Sketch on XZ plane
sketch14 = doc.addObject("Sketcher::SketchObject", "Sketch013")
body14.addObject(sketch14)
sketch14.AttachmentSupport = (doc.getObject("XZ_Plane013"), [""])
sketch14.MapMode = "FlatFace"
sketch14.addGeometry([
    Part.LineSegment(V(-1678, 45, 0), V(-1678, 0, 0)),
    Part.LineSegment(V(-1678, 0, 0), V(-22, 0, 0)),
    Part.LineSegment(V(-22, 0, 0), V(-22, 45, 0)),
    Part.LineSegment(V(-22, 45, 0), V(-1678, 45, 0)),
], False)
sketch14.addConstraint([
    Sketcher.Constraint("Coincident", 0, 2, 1, 1),
    Sketcher.Constraint("Coincident", 1, 2, 2, 1),
    Sketcher.Constraint("Coincident", 2, 2, 3, 1),
    Sketcher.Constraint("Coincident", 3, 2, 0, 1),
    Sketcher.Constraint("Vertical", 0),
    Sketcher.Constraint("Horizontal", 1),
    Sketcher.Constraint("Vertical", 2),
    Sketcher.Constraint("Horizontal", 3),
    Sketcher.Constraint("PointOnObject", 0, 2, -1),
    Sketcher.Constraint("DistanceX", 1, 1, 1, 2, 1656.0),
    Sketcher.Constraint("DistanceY", 0, 2, 0, 1, 45.0),
    Sketcher.Constraint("DistanceX", 0, 2, -1, 1, 1678.0),
])
sketch14.setExpression("Constraints[9]", "Params.sketch14_width")
sketch14.setExpression("Constraints[10]", "Params.sketch14_height")
pad14 = doc.addObject("PartDesign::Pad", "Pad013")
body14.addObject(pad14)
pad14.Profile = sketch14
pad14.setExpression("Length", "Params.pad14_length")
body15 = doc.addObject("PartDesign::Body", "Body014")

# Sketch on XZ plane
sketch15 = doc.addObject("Sketcher::SketchObject", "Sketch014")
body15.addObject(sketch15)
sketch15.AttachmentSupport = (doc.getObject("XZ_Plane014"), [""])
sketch15.MapMode = "FlatFace"
sketch15.addGeometry([
    Part.LineSegment(V(-1678, 1573, 0), V(-1678, 45, 0)),
    Part.LineSegment(V(-1678, 45, 0), V(-1633, 45, 0)),
    Part.LineSegment(V(-1633, 45, 0), V(-1633, 1573, 0)),
    Part.LineSegment(V(-1633, 1573, 0), V(-1678, 1573, 0)),
], False)
sketch15.addConstraint([
    Sketcher.Constraint("Coincident", 0, 2, 1, 1),
    Sketcher.Constraint("Coincident", 1, 2, 2, 1),
    Sketcher.Constraint("Coincident", 2, 2, 3, 1),
    Sketcher.Constraint("Coincident", 3, 2, 0, 1),
    Sketcher.Constraint("Vertical", 0),
    Sketcher.Constraint("Horizontal", 1),
    Sketcher.Constraint("Vertical", 2),
    Sketcher.Constraint("Horizontal", 3),
    Sketcher.Constraint("DistanceX", 1, 1, 1, 2, 45.0),
    Sketcher.Constraint("DistanceY", 0, 2, 0, 1, 1528.0),
    Sketcher.Constraint("DistanceX", 0, 2, -1, 1, 1678.0),
    Sketcher.Constraint("DistanceY", -1, 1, 0, 2, 45.0),
])
sketch15.setExpression("Constraints[8]", "Params.sketch15_width")
sketch15.setExpression("Constraints[9]", "Params.sketch15_height")
pad15 = doc.addObject("PartDesign::Pad", "Pad014")
body15.addObject(pad15)
pad15.Profile = sketch15
pad15.setExpression("Length", "Params.pad15_length")
body16 = doc.addObject("PartDesign::Body", "Body015")

# Sketch on XZ plane
sketch16 = doc.addObject("Sketcher::SketchObject", "Sketch015")
body16.addObject(sketch16)
sketch16.AttachmentSupport = (doc.getObject("XZ_Plane015"), [""])
sketch16.MapMode = "FlatFace"
sketch16.addGeometry([
    Part.LineSegment(V(-1678, 1618, 0), V(-1700, 1640, 0)),
    Part.LineSegment(V(-1700, 1640, 0), V(-1700, 0, 0)),
    Part.LineSegment(V(-1700, 0, 0), V(-1678, 0, 0)),
    Part.LineSegment(V(-1678, 0, 0), V(-1678, 1618, 0)),
], False)
sketch16.addConstraint([
    Sketcher.Constraint("Coincident", 0, 2, 1, 1),
    Sketcher.Constraint("Coincident", 1, 2, 2, 1),
    Sketcher.Constraint("Coincident", 2, 2, 3, 1),
    Sketcher.Constraint("Coincident", 3, 2, 0, 1),
    Sketcher.Constraint("Vertical", 1),
    Sketcher.Constraint("Horizontal", 2),
    Sketcher.Constraint("Vertical", 3),
    Sketcher.Constraint("PointOnObject", 1, 2, -1),
    Sketcher.Constraint("DistanceX", 2, 1, 2, 2, 22.0),
    Sketcher.Constraint("DistanceY", 1, 2, 1, 1, 1640.0),
    Sketcher.Constraint("DistanceY", 3, 1, 3, 2, 1618.0),
    Sketcher.Constraint("DistanceX", 0, 2, -1, 1, 1700.0),
])
sketch16.setExpression("Constraints[8]", "Params.sketch16_width")
sketch16.setExpression("Constraints[9]", "Params.sketch16_height")
sketch16.setExpression("Constraints[10]", "Params.sketch16_height2")
pad16 = doc.addObject("PartDesign::Pad", "Pad015")
body16.addObject(pad16)
pad16.Profile = sketch16
pad16.setExpression("Length", "Params.pad16_length")
body17 = doc.addObject("PartDesign::Body", "Body016")

# Sketch on XZ plane
sketch17 = doc.addObject("Sketcher::SketchObject", "Sketch016")
body17.addObject(sketch17)
sketch17.AttachmentSupport = (doc.getObject("XZ_Plane016"), [""])
sketch17.MapMode = "FlatFace"
sketch17.addGeometry([
    Part.LineSegment(V(0, 1640, 0), V(-1700, 1640, 0)),
    Part.LineSegment(V(-1700, 1640, 0), V(-1678, 1618, 0)),
    Part.LineSegment(V(-1678, 1618, 0), V(-22, 1618, 0)),
    Part.LineSegment(V(-22, 1618, 0), V(0, 1640, 0)),
], False)
sketch17.addConstraint([
    Sketcher.Constraint("Coincident", 0, 2, 1, 1),
    Sketcher.Constraint("Coincident", 1, 2, 2, 1),
    Sketcher.Constraint("Coincident", 2, 2, 3, 1),
    Sketcher.Constraint("Coincident", 3, 2, 0, 1),
    Sketcher.Constraint("Horizontal", 0),
    Sketcher.Constraint("Horizontal", 2),
    Sketcher.Constraint("PointOnObject", 3, 2, -2),
    Sketcher.Constraint("Perpendicular", 1, 3),
    Sketcher.Constraint("Equal", 1, 3),
    Sketcher.Constraint("DistanceX", 0, 2, 0, 1, 1700.0),
    Sketcher.Constraint("DistanceX", 2, 1, 2, 2, 1656.0),
    Sketcher.Constraint("DistanceY", -1, 1, 0, 2, 1640.0),
])
sketch17.setExpression("Constraints[9]", "Params.sketch17_width")
sketch17.setExpression("Constraints[10]", "Params.sketch17_width2")
pad17 = doc.addObject("PartDesign::Pad", "Pad016")
body17.addObject(pad17)
pad17.Profile = sketch17
pad17.setExpression("Length", "Params.pad17_length")

doc.recompute()
